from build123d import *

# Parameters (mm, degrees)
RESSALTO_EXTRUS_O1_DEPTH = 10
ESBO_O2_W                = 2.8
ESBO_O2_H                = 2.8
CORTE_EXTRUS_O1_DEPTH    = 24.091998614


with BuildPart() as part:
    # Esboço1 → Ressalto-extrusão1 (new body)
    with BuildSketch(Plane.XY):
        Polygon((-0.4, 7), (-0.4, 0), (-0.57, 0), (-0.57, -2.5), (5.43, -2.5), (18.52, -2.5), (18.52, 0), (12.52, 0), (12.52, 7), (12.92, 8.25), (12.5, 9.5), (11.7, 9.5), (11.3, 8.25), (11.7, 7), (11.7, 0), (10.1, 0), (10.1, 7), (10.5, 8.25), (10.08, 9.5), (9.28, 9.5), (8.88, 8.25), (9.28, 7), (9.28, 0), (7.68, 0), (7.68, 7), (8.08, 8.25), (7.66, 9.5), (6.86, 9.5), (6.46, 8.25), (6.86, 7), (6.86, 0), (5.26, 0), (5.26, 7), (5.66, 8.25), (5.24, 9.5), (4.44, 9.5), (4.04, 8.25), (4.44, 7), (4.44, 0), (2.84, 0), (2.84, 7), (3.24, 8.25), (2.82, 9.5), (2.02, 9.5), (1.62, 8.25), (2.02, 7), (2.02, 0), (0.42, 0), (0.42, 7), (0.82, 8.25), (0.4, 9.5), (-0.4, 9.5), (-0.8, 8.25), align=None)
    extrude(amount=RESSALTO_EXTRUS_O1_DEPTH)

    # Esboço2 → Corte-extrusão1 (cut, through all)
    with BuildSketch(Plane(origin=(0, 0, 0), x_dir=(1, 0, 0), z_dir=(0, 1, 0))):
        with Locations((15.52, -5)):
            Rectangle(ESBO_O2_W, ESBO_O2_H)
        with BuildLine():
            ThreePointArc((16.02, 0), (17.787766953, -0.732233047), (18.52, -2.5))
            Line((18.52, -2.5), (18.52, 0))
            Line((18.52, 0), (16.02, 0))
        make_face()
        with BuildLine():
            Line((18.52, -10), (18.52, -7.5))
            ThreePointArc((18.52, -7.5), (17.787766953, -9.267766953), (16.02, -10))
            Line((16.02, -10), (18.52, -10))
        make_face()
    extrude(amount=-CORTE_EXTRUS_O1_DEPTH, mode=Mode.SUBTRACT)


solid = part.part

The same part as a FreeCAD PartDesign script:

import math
import FreeCAD as App
import Part
import Sketcher


def add_polygon(sketch, points):
    """Adds a closed chain of lines whose ends are joined by coincident constraints."""
    first, n = sketch.GeometryCount, len(points)
    for a, b in zip(points, points[1:] + points[:1]):
        sketch.addGeometry(Part.LineSegment(App.Vector(*a, 0), App.Vector(*b, 0)), False)
    for i in range(n):
        sketch.addConstraint(Sketcher.Constraint("Coincident", first + i, 2, first + (i + 1) % n, 1))

doc = App.newDocument("Part")
body = doc.addObject("PartDesign::Body", "Body")

sketch1 = doc.addObject("Sketcher::SketchObject", "Sketch")
body.addObject(sketch1)
sketch1.AttachmentSupport = (doc.XY_Plane, [""])
sketch1.MapMode = "FlatFace"
add_polygon(sketch1, [(-0.4, 7), (-0.4, 0), (-0.57, 0), (-0.57, -2.5), (18.52, -2.5), (18.52, 0), (12.52, 0), (12.52, 7), (12.92, 8.25), (12.5, 9.5), (11.7, 9.5), (11.3, 8.25), (11.7, 7), (11.7, 0), (10.1, 0), (10.1, 7), (10.5, 8.25), (10.08, 9.5), (9.28, 9.5), (8.88, 8.25), (9.28, 7), (9.28, 0), (7.68, 0), (7.68, 7), (8.08, 8.25), (7.66, 9.5), (6.86, 9.5), (6.46, 8.25), (6.86, 7), (6.86, 0), (5.26, 0), (5.26, 7), (5.66, 8.25), (5.24, 9.5), (4.44, 9.5), (4.04, 8.25), (4.44, 7), (4.44, 0), (2.84, 0), (2.84, 7), (3.24, 8.25), (2.82, 9.5), (2.02, 9.5), (1.62, 8.25), (2.02, 7), (2.02, 0), (0.42, 0), (0.42, 7), (0.82, 8.25), (0.4, 9.5), (-0.4, 9.5), (-0.8, 8.25)])
sketch1.addConstraint([
    Sketcher.Constraint("Vertical", 0),
    Sketcher.Constraint("Horizontal", 1),
    Sketcher.Constraint("Vertical", 2),
    Sketcher.Constraint("Horizontal", 3),
    Sketcher.Constraint("Vertical", 4),
    Sketcher.Constraint("Horizontal", 5),
    Sketcher.Constraint("Vertical", 6),
    Sketcher.Constraint("Horizontal", 9),
    Sketcher.Constraint("Vertical", 12),
    Sketcher.Constraint("Horizontal", 13),
    Sketcher.Constraint("Vertical", 14),
    Sketcher.Constraint("Horizontal", 17),
    Sketcher.Constraint("Vertical", 20),
    Sketcher.Constraint("Horizontal", 21),
    Sketcher.Constraint("Vertical", 22),
    Sketcher.Constraint("Horizontal", 25),
    Sketcher.Constraint("Vertical", 28),
    Sketcher.Constraint("Horizontal", 29),
    Sketcher.Constraint("Vertical", 30),
    Sketcher.Constraint("Horizontal", 33),
    Sketcher.Constraint("Vertical", 36),
    Sketcher.Constraint("Horizontal", 37),
    Sketcher.Constraint("Vertical", 38),
    Sketcher.Constraint("Horizontal", 41),
    Sketcher.Constraint("Vertical", 44),
    Sketcher.Constraint("Horizontal", 45),
    Sketcher.Constraint("Vertical", 46),
    Sketcher.Constraint("Horizontal", 49),
    Sketcher.Constraint("PointOnObject", 0, 2, -1),
    Sketcher.Constraint("PointOnObject", 4, 2, -1),
    Sketcher.Constraint("PointOnObject", 12, 2, -1),
    Sketcher.Constraint("PointOnObject", 20, 2, -1),
    Sketcher.Constraint("PointOnObject", 28, 2, -1),
    Sketcher.Constraint("PointOnObject", 36, 2, -1),
    Sketcher.Constraint("PointOnObject", 44, 2, -1),
    Sketcher.Constraint("Parallel", 7, 10),
    Sketcher.Constraint("Parallel", 10, 15),
    Sketcher.Constraint("Parallel", 8, 16),
    Sketcher.Constraint("Parallel", 15, 18),
    Sketcher.Constraint("Parallel", 11, 19),
    Sketcher.Constraint("Parallel", 18, 23),
    Sketcher.Constraint("Parallel", 16, 24),
    Sketcher.Constraint("Parallel", 23, 26),
    Sketcher.Constraint("Parallel", 19, 27),
    Sketcher.Constraint("Parallel", 26, 31),
    Sketcher.Constraint("Parallel", 24, 32),
    Sketcher.Constraint("Parallel", 31, 34),
    Sketcher.Constraint("Parallel", 27, 35),
    Sketcher.Constraint("Parallel", 34, 39),
    Sketcher.Constraint("Parallel", 32, 40),
    Sketcher.Constraint("Parallel", 39, 42),
    Sketcher.Constraint("Parallel", 35, 43),
    Sketcher.Constraint("Parallel", 42, 47),
    Sketcher.Constraint("Parallel", 40, 48),
    Sketcher.Constraint("Parallel", 47, 50),
    Sketcher.Constraint("Parallel", 43, 51),
    Sketcher.Constraint("Horizontal", 7, 2, 10, 2),
    Sketcher.Constraint("Horizontal", 6, 2, 11, 2),
    Sketcher.Constraint("Horizontal", 11, 2, 14, 2),
    Sketcher.Constraint("Horizontal", 10, 2, 15, 2),
    Sketcher.Constraint("Horizontal", 9, 2, 16, 2),
    Sketcher.Constraint("Horizontal", 15, 2, 18, 2),
    Sketcher.Constraint("Horizontal", 14, 2, 19, 2),
    Sketcher.Constraint("Horizontal", 19, 2, 22, 2),
    Sketcher.Constraint("Horizontal", 18, 2, 23, 2),
    Sketcher.Constraint("Horizontal", 17, 2, 24, 2),
    Sketcher.Constraint("Horizontal", 23, 2, 26, 2),
    Sketcher.Constraint("Horizontal", 22, 2, 27, 2),
    Sketcher.Constraint("Horizontal", 27, 2, 30, 2),
    Sketcher.Constraint("Horizontal", 26, 2, 31, 2),
    Sketcher.Constraint("Horizontal", 25, 2, 32, 2),
    Sketcher.Constraint("Horizontal", 31, 2, 34, 2),
    Sketcher.Constraint("Horizontal", 30, 2, 35, 2),
    Sketcher.Constraint("Horizontal", 35, 2, 38, 2),
    Sketcher.Constraint("Horizontal", 34, 2, 39, 2),
    Sketcher.Constraint("Horizontal", 33, 2, 40, 2),
    Sketcher.Constraint("Horizontal", 39, 2, 42, 2),
    Sketcher.Constraint("Horizontal", 38, 2, 43, 2),
    Sketcher.Constraint("Horizontal", 43, 2, 46, 2),
    Sketcher.Constraint("Horizontal", 42, 2, 47, 2),
    Sketcher.Constraint("Horizontal", 41, 2, 48, 2),
    Sketcher.Constraint("Horizontal", 47, 2, 50, 2),
    Sketcher.Constraint("Horizontal", 46, 2, 51, 2),
    Sketcher.Constraint("Vertical", 9, 2, 11, 2),
    Sketcher.Constraint("Equal", 9, 17),
    Sketcher.Constraint("Equal", 13, 21),
    Sketcher.Constraint("Equal", 17, 25),
    Sketcher.Constraint("Equal", 21, 29),
    Sketcher.Constraint("Equal", 25, 33),
    Sketcher.Constraint("Equal", 29, 37),
    Sketcher.Constraint("Equal", 33, 41),
    Sketcher.Constraint("Equal", 37, 45),
    Sketcher.Constraint("Equal", 41, 49),
    Sketcher.Constraint("Equal", 7, 10),
    Sketcher.Constraint("DistanceX", 5, 2, 5, 1, 6.0),
    Sketcher.Constraint("DistanceY", 0, 2, 0, 1, 7.0),
    Sketcher.Constraint("DistanceX", 9, 2, 9, 1, 0.8),
    Sketcher.Constraint("DistanceX", 13, 2, 13, 1, 1.6),
    Sketcher.Constraint("DistanceY", 2, 2, 2, 1, 2.5),
    Sketcher.Constraint("DistanceY", 3, 2, 8, 2, 12.0),
    Sketcher.Constraint("DistanceX", 15, 2, 8, 2, 2.0),
    Sketcher.Constraint("DistanceX", 1, 2, 1, 1, 0.17),
    Sketcher.Constraint("DistanceX", 3, 1, 3, 2, 19.09),
    Sketcher.Constraint("DistanceX", 0, 2, -1, 1, 0.4),
])
pad1 = doc.addObject("PartDesign::Pad", "Pad")
body.addObject(pad1)
pad1.Profile = sketch1
pad1.Length = 10

sketch2 = doc.addObject("Sketcher::SketchObject", "Sketch001")
body.addObject(sketch2)
sketch2.AttachmentSupport = (doc.XZ_Plane, [""])
sketch2.MapMode = "FlatFace"
add_polygon(sketch2, [(14.12, 3.6), (14.12, 6.4), (16.92, 6.4), (16.92, 3.6)])
sketch2.addGeometry(Part.ArcOfCircle(Part.Circle(App.Vector(16.02, 2.5, 0), App.Vector(0, 0, 1), 2.5), math.radians(-90), math.radians(0)), False)
sketch2.addGeometry(Part.LineSegment(App.Vector(18.52, 2.5, 0), App.Vector(18.52, 0, 0)), False)
sketch2.addGeometry(Part.LineSegment(App.Vector(18.52, 0, 0), App.Vector(16.02, 0, 0)), False)
sketch2.addGeometry(Part.LineSegment(App.Vector(18.52, 10, 0), App.Vector(18.52, 7.5, 0)), False)
sketch2.addGeometry(Part.ArcOfCircle(Part.Circle(App.Vector(16.02, 7.5, 0), App.Vector(0, 0, 1), 2.5), math.radians(0), math.radians(90)), False)
sketch2.addGeometry(Part.LineSegment(App.Vector(16.02, 10, 0), App.Vector(18.52, 10, 0)), False)
sketch2.addConstraint([
    Sketcher.Constraint("Tangent", 4, 2, 5, 1),
    Sketcher.Constraint("Coincident", 5, 2, 6, 1),
    Sketcher.Constraint("Tangent", 6, 2, 4, 1),
    Sketcher.Constraint("Tangent", 7, 2, 8, 1),
    Sketcher.Constraint("Tangent", 8, 2, 9, 1),
    Sketcher.Constraint("Coincident", 9, 2, 7, 1),
    Sketcher.Constraint("Vertical", 0),
    Sketcher.Constraint("Horizontal", 1),
    Sketcher.Constraint("Vertical", 2),
    Sketcher.Constraint("Horizontal", 3),
    Sketcher.Constraint("Vertical", 5),
    Sketcher.Constraint("Horizontal", 6),
    Sketcher.Constraint("Vertical", 7),
    Sketcher.Constraint("Horizontal", 9),
    Sketcher.Constraint("Equal", 4, 8),
    Sketcher.Constraint("PointOnObject", 5, 2, -1),
    Sketcher.Constraint("Vertical", 4, 3, 8, 3),
    Sketcher.Constraint("Equal", 3, 0),
    Sketcher.Constraint("Radius", 4, 2.5),
    Sketcher.Constraint("DistanceX", 1, 1, 1, 2, 2.8),
    Sketcher.Constraint("DistanceY", -1, 1, 8, 2, 10.0),
    Sketcher.Constraint("DistanceY", -1, 1, 0, 2, 6.4),
    Sketcher.Constraint("DistanceX", 0, 2, 8, 3, 1.9),
    Sketcher.Constraint("DistanceX", -1, 1, 4, 3, 16.02),
])
pocket1 = doc.addObject("PartDesign::Pocket", "Pocket")
body.addObject(pocket1)
pocket1.Profile = sketch2
pocket1.Type = "ThroughAll"
pocket1.Reversed = True

doc.recompute()
